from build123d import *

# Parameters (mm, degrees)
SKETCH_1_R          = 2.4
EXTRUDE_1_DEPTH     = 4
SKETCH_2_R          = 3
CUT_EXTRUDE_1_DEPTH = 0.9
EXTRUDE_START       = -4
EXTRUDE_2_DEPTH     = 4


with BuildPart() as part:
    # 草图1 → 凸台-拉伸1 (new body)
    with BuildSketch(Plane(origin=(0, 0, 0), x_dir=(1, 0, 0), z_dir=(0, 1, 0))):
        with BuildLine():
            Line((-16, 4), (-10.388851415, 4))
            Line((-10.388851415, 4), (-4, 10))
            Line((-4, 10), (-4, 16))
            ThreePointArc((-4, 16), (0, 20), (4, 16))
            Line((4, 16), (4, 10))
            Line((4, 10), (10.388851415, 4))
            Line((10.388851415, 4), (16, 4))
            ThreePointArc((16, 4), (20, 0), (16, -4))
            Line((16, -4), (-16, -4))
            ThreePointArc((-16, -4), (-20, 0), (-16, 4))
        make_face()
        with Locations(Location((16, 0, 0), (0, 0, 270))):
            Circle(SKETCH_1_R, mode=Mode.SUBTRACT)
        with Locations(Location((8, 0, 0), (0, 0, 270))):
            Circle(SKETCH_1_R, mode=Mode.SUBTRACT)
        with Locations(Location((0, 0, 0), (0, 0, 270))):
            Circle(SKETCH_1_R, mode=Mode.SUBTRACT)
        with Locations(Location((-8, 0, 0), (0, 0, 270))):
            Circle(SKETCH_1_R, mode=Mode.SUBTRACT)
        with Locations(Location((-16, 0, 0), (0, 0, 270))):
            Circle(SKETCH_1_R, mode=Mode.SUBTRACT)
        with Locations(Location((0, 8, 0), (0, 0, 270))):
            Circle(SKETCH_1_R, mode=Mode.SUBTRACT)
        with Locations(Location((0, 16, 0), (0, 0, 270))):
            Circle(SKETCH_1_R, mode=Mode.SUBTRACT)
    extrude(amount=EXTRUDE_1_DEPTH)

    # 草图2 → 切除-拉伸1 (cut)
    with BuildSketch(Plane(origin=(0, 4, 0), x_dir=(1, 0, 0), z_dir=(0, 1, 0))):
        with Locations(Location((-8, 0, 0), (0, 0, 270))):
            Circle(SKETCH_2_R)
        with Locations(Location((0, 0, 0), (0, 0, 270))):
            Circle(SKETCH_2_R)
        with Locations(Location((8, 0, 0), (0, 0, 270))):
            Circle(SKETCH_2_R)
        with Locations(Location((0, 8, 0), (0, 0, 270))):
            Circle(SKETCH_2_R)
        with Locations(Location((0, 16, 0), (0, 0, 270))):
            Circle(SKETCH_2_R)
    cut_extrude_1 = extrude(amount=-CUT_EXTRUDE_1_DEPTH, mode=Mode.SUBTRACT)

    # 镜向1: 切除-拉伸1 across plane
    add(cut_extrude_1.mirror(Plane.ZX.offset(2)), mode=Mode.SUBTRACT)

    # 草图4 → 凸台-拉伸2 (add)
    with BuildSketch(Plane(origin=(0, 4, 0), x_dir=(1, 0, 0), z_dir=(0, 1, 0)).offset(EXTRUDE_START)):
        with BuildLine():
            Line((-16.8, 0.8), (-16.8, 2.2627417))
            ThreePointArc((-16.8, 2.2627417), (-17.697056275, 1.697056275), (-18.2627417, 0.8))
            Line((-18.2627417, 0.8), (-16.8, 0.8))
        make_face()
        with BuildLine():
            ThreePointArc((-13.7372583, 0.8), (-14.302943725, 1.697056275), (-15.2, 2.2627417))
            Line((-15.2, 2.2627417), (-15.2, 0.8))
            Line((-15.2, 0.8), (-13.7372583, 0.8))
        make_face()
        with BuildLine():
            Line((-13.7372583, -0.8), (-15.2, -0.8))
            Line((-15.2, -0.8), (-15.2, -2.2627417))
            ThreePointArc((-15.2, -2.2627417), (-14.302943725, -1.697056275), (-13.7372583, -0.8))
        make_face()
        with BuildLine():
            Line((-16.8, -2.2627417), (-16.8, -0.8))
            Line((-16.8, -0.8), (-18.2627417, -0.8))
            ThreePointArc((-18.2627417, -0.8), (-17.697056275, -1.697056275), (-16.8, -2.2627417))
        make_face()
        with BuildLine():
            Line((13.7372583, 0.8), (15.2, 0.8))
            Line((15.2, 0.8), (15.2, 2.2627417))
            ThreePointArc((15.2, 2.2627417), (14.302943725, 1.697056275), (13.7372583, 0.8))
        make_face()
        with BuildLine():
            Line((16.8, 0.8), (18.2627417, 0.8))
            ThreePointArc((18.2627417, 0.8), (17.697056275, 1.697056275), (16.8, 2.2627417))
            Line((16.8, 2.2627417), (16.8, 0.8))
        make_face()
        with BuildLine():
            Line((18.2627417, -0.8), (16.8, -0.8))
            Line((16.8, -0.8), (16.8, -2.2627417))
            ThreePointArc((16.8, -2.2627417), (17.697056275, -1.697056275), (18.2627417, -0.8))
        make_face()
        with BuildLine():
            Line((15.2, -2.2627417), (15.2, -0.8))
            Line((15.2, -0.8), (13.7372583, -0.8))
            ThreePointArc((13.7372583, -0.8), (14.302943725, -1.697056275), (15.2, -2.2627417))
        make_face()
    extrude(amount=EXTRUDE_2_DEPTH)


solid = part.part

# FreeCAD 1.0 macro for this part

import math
import FreeCAD as App
import Part
import Sketcher
Q = App.Units.Quantity

doc = App.newDocument("Part")
body = doc.addObject("PartDesign::Body", "Body")

# Sketch on XZ plane
sketch1 = doc.addObject("Sketcher::SketchObject", "Sketch")
body.addObject(sketch1)
sketch1.AttachmentSupport = (doc.XZ_Plane, [""])
sketch1.MapMode = "FlatFace"
sketch1.addGeometry(Part.LineSegment(App.Vector(-10.4, -4, 0), App.Vector(-16, -4, 0)), False)
sketch1.addGeometry(Part.ArcOfCircle(Part.Circle(App.Vector(-16, 0, 0), App.Vector(0, 0, 1), 4), math.radians(90), math.radians(270)), False)
sketch1.addGeometry(Part.LineSegment(App.Vector(-16, 4, 0), App.Vector(16, 4, 0)), False)
sketch1.addGeometry(Part.ArcOfCircle(Part.Circle(App.Vector(16, 0, 0), App.Vector(0, 0, 1), 4), math.radians(-90), math.radians(90)), False)
sketch1.addGeometry(Part.LineSegment(App.Vector(16, -4, 0), App.Vector(10.4, -4, 0)), False)
sketch1.addGeometry(Part.LineSegment(App.Vector(10.4, -4, 0), App.Vector(4, -10, 0)), False)
sketch1.addGeometry(Part.LineSegment(App.Vector(4, -10, 0), App.Vector(4, -16, 0)), False)
sketch1.addGeometry(Part.ArcOfCircle(Part.Circle(App.Vector(0, -16, 0), App.Vector(0, 0, 1), 4), math.radians(180), math.radians(360)), False)
sketch1.addGeometry(Part.LineSegment(App.Vector(-4, -16, 0), App.Vector(-4, -10, 0)), False)
sketch1.addGeometry(Part.LineSegment(App.Vector(-4, -10, 0), App.Vector(-10.4, -4, 0)), False)
sketch1.addGeometry(Part.Circle(App.Vector(16, 0, 0), App.Vector(0, 0, 1), 2.4), False)
sketch1.addGeometry(Part.Circle(App.Vector(8, 0, 0), App.Vector(0, 0, 1), 2.4), False)
sketch1.addGeometry(Part.Circle(App.Vector(0, 0, 0), App.Vector(0, 0, 1), 2.4), False)
sketch1.addGeometry(Part.Circle(App.Vector(-8, 0, 0), App.Vector(0, 0, 1), 2.4), False)
sketch1.addGeometry(Part.Circle(App.Vector(-16, 0, 0), App.Vector(0, 0, 1), 2.4), False)
sketch1.addGeometry(Part.Circle(App.Vector(0, -8, 0), App.Vector(0, 0, 1), 2.4), False)
sketch1.addGeometry(Part.Circle(App.Vector(0, -16, 0), App.Vector(0, 0, 1), 2.4), False)
sketch1.addConstraint(Sketcher.Constraint("Tangent", 0, 2, 1, 2))
sketch1.addConstraint(Sketcher.Constraint("Tangent", 1, 1, 2, 1))
sketch1.addConstraint(Sketcher.Constraint("Tangent", 2, 2, 3, 2))
sketch1.addConstraint(Sketcher.Constraint("Tangent", 3, 1, 4, 1))
sketch1.addConstraint(Sketcher.Constraint("Coincident", 4, 2, 5, 1))
sketch1.addConstraint(Sketcher.Constraint("Coincident", 5, 2, 6, 1))
sketch1.addConstraint(Sketcher.Constraint("Tangent", 6, 2, 7, 2))
sketch1.addConstraint(Sketcher.Constraint("Tangent", 7, 1, 8, 1))
sketch1.addConstraint(Sketcher.Constraint("Coincident", 8, 2, 9, 1))
sketch1.addConstraint(Sketcher.Constraint("Coincident", 9, 2, 0, 1))
sketch1.addConstraint(Sketcher.Constraint("Horizontal", 0))
sketch1.addConstraint(Sketcher.Constraint("Horizontal", 2))
sketch1.addConstraint(Sketcher.Constraint("Horizontal", 4))
sketch1.addConstraint(Sketcher.Constraint("Vertical", 6))
sketch1.addConstraint(Sketcher.Constraint("Vertical", 8))
sketch1.addConstraint(Sketcher.Constraint("Coincident", 12, 3, -1, 1))
sketch1.addConstraint(Sketcher.Constraint("Coincident", 10, 3, 3, 3))
sketch1.addConstraint(Sketcher.Constraint("Coincident", 14, 3, 1, 3))
sketch1.addConstraint(Sketcher.Constraint("Coincident", 16, 3, 7, 3))
sketch1.addConstraint(Sketcher.Constraint("Equal", 1, 3))
sketch1.addConstraint(Sketcher.Constraint("Equal", 3, 7))
sketch1.addConstraint(Sketcher.Constraint("Equal", 10, 11))
sketch1.addConstraint(Sketcher.Constraint("Equal", 11, 12))
sketch1.addConstraint(Sketcher.Constraint("Equal", 12, 13))
sketch1.addConstraint(Sketcher.Constraint("Equal", 13, 14))
sketch1.addConstraint(Sketcher.Constraint("Equal", 14, 15))
sketch1.addConstraint(Sketcher.Constraint("Equal", 15, 16))
sketch1.addConstraint(Sketcher.Constraint("Symmetric", 1, 3, 3, 3, -1, 1))
sketch1.addConstraint(Sketcher.Constraint("Symmetric", 11, 3, 13, 3, -1, 1))
sketch1.addConstraint(Sketcher.Constraint("Symmetric", 5, 2, 8, 2, -2))
sketch1.addConstraint(Sketcher.Constraint("PointOnObject", 11, 3, -1))
sketch1.addConstraint(Sketcher.Constraint("PointOnObject", 15, 3, -2))
sketch1.addConstraint(Sketcher.Constraint("Equal", 0, 4))
sketch1.addConstraint(Sketcher.Constraint("Radius", 1, Q("4 mm")))
sketch1.addConstraint(Sketcher.Constraint("Diameter", 10, Q("4.8 mm")))
sketch1.addConstraint(Sketcher.Constraint("DistanceX", 2, 1, 2, 2, Q("32 mm")))
sketch1.addConstraint(Sketcher.Constraint("DistanceY", 6, 2, 6, 1, Q("6 mm")))
sketch1.addConstraint(Sketcher.Constraint("DistanceY", 7, 3, -1, 1, Q("16 mm")))
sketch1.addConstraint(Sketcher.Constraint("DistanceX", -1, 1, 11, 3, Q("8 mm")))
sketch1.addConstraint(Sketcher.Constraint("DistanceY", 15, 3, -1, 1, Q("8 mm")))
sketch1.addConstraint(Sketcher.Constraint("DistanceX", 0, 2, 0, 1, Q("5.611149 mm")))
pad1 = doc.addObject("PartDesign::Pad", "Pad")
body.addObject(pad1)
pad1.Profile = sketch1
pad1.Length = 4
pad1.Reversed = True

# Sketch on XZ plane
sketch2 = doc.addObject("Sketcher::SketchObject", "Sketch001")
body.addObject(sketch2)
sketch2.AttachmentSupport = (doc.XZ_Plane, [""])
sketch2.MapMode = "FlatFace"
sketch2.AttachmentOffset = App.Placement(App.Vector(0, 0, -4), App.Rotation())
sketch2.addGeometry(Part.Circle(App.Vector(-8, 0, 0), App.Vector(0, 0, 1), 3), False)
sketch2.addGeometry(Part.Circle(App.Vector(0, 0, 0), App.Vector(0, 0, 1), 3), False)
sketch2.addGeometry(Part.Circle(App.Vector(8, 0, 0), App.Vector(0, 0, 1), 3), False)
sketch2.addGeometry(Part.Circle(App.Vector(0, -8, 0), App.Vector(0, 0, 1), 3), False)
sketch2.addGeometry(Part.Circle(App.Vector(0, -16, 0), App.Vector(0, 0, 1), 3), False)
sketch2.addConstraint(Sketcher.Constraint("Coincident", 1, 3, -1, 1))
sketch2.addConstraint(Sketcher.Constraint("Equal", 0, 1))
sketch2.addConstraint(Sketcher.Constraint("Equal", 1, 2))
sketch2.addConstraint(Sketcher.Constraint("Equal", 2, 3))
sketch2.addConstraint(Sketcher.Constraint("Equal", 3, 4))
sketch2.addConstraint(Sketcher.Constraint("Symmetric", 0, 3, 2, 3, -1, 1))
sketch2.addConstraint(Sketcher.Constraint("PointOnObject", 0, 3, -1))
sketch2.addConstraint(Sketcher.Constraint("PointOnObject", 3, 3, -2))
sketch2.addConstraint(Sketcher.Constraint("PointOnObject", 4, 3, -2))
sketch2.addConstraint(Sketcher.Constraint("Diameter", 0, Q("6 mm")))
sketch2.addConstraint(Sketcher.Constraint("DistanceX", 0, 3, -1, 1, Q("8 mm")))
sketch2.addConstraint(Sketcher.Constraint("DistanceY", 3, 3, -1, 1, Q("8 mm")))
sketch2.addConstraint(Sketcher.Constraint("DistanceY", 4, 3, -1, 1, Q("16 mm")))
pocket1 = doc.addObject("PartDesign::Pocket", "Pocket")
body.addObject(pocket1)
pocket1.Profile = sketch2
pocket1.Length = 0.9
pocket1.Reversed = True
doc.recompute()

datumplane = doc.addObject("PartDesign::Plane", "DatumPlane")
body.addObject(datumplane)
datumplane.AttachmentSupport = (doc.XZ_Plane, [""])
datumplane.MapMode = "FlatFace"
datumplane.AttachmentOffset = App.Placement(App.Vector(0, 0, -2), App.Rotation())
mirrored = doc.addObject("PartDesign::Mirrored", "Mirrored")
body.addObject(mirrored)
mirrored.Originals = [pocket1]
mirrored.MirrorPlane = (datumplane, [""])
body.Tip = mirrored

# Sketch on XZ plane
sketch3 = doc.addObject("Sketcher::SketchObject", "Sketch002")
body.addObject(sketch3)
sketch3.AttachmentSupport = (doc.XZ_Plane, [""])
sketch3.MapMode = "FlatFace"
sketch3.addGeometry(Part.LineSegment(App.Vector(-16.8, -0.8, 0), App.Vector(-16.8, -2.3, 0)), False)
sketch3.addGeometry(Part.ArcOfCircle(Part.Circle(App.Vector(-16, 0, 0), App.Vector(0, 0, 1), 2.4), math.radians(-161), math.radians(-109)), False)
sketch3.addGeometry(Part.LineSegment(App.Vector(-18.3, -0.8, 0), App.Vector(-16.8, -0.8, 0)), False)
sketch3.addGeometry(Part.ArcOfCircle(Part.Circle(App.Vector(-16, 0, 0), App.Vector(0, 0, 1), 2.4), math.radians(-71), math.radians(-19)), False)
sketch3.addGeometry(Part.LineSegment(App.Vector(-15.2, -2.3, 0), App.Vector(-15.2, -0.8, 0)), False)
sketch3.addGeometry(Part.LineSegment(App.Vector(-15.2, -0.8, 0), App.Vector(-13.7, -0.8, 0)), False)
sketch3.addGeometry(Part.LineSegment(App.Vector(-13.7, 0.8, 0), App.Vector(-15.2, 0.8, 0)), False)
sketch3.addGeometry(Part.LineSegment(App.Vector(-15.2, 0.8, 0), App.Vector(-15.2, 2.3, 0)), False)
sketch3.addGeometry(Part.ArcOfCircle(Part.Circle(App.Vector(-16, 0, 0), App.Vector(0, 0, 1), 2.4), math.radians(19), math.radians(71)), False)
sketch3.addGeometry(Part.LineSegment(App.Vector(-16.8, 2.3, 0), App.Vector(-16.8, 0.8, 0)), False)
sketch3.addGeometry(Part.LineSegment(App.Vector(-16.8, 0.8, 0), App.Vector(-18.3, 0.8, 0)), False)
sketch3.addGeometry(Part.ArcOfCircle(Part.Circle(App.Vector(-16, 0, 0), App.Vector(0, 0, 1), 2.4), math.radians(109), math.radians(161)), False)
sketch3.addGeometry(Part.LineSegment(App.Vector(13.7, -0.8, 0), App.Vector(15.2, -0.8, 0)), False)
sketch3.addGeometry(Part.LineSegment(App.Vector(15.2, -0.8, 0), App.Vector(15.2, -2.3, 0)), False)
sketch3.addGeometry(Part.ArcOfCircle(Part.Circle(App.Vector(16, 0, 0), App.Vector(0, 0, 1), 2.4), math.radians(-161), math.radians(-109)), False)
sketch3.addGeometry(Part.LineSegment(App.Vector(16.8, -0.8, 0), App.Vector(18.3, -0.8, 0)), False)
sketch3.addGeometry(Part.ArcOfCircle(Part.Circle(App.Vector(16, 0, 0), App.Vector(0, 0, 1), 2.4), math.radians(-71), math.radians(-19)), False)
sketch3.addGeometry(Part.LineSegment(App.Vector(16.8, -2.3, 0), App.Vector(16.8, -0.8, 0)), False)
sketch3.addGeometry(Part.LineSegment(App.Vector(18.3, 0.8, 0), App.Vector(16.8, 0.8, 0)), False)
sketch3.addGeometry(Part.LineSegment(App.Vector(16.8, 0.8, 0), App.Vector(16.8, 2.3, 0)), False)
sketch3.addGeometry(Part.ArcOfCircle(Part.Circle(App.Vector(16, 0, 0), App.Vector(0, 0, 1), 2.4), math.radians(19), math.radians(71)), False)
sketch3.addGeometry(Part.LineSegment(App.Vector(15.2, 2.3, 0), App.Vector(15.2, 0.8, 0)), False)
sketch3.addGeometry(Part.LineSegment(App.Vector(15.2, 0.8, 0), App.Vector(13.7, 0.8, 0)), False)
sketch3.addGeometry(Part.ArcOfCircle(Part.Circle(App.Vector(16, 0, 0), App.Vector(0, 0, 1), 2.4), math.radians(109), math.radians(161)), False)
sketch3.addConstraint(Sketcher.Constraint("Coincident", 0, 2, 1, 2))
sketch3.addConstraint(Sketcher.Constraint("Coincident", 1, 1, 2, 1))
sketch3.addConstraint(Sketcher.Constraint("Coincident", 2, 2, 0, 1))
sketch3.addConstraint(Sketcher.Constraint("Coincident", 3, 1, 4, 1))
sketch3.addConstraint(Sketcher.Constraint("Coincident", 4, 2, 5, 1))
sketch3.addConstraint(Sketcher.Constraint("Coincident", 5, 2, 3, 2))
sketch3.addConstraint(Sketcher.Constraint("Coincident", 6, 2, 7, 1))
sketch3.addConstraint(Sketcher.Constraint("Coincident", 7, 2, 8, 2))
sketch3.addConstraint(Sketcher.Constraint("Coincident", 8, 1, 6, 1))
sketch3.addConstraint(Sketcher.Constraint("Coincident", 9, 2, 10, 1))
sketch3.addConstraint(Sketcher.Constraint("Coincident", 10, 2, 11, 2))
sketch3.addConstraint(Sketcher.Constraint("Coincident", 11, 1, 9, 1))
sketch3.addConstraint(Sketcher.Constraint("Coincident", 12, 2, 13, 1))
sketch3.addConstraint(Sketcher.Constraint("Coincident", 13, 2, 14, 2))
sketch3.addConstraint(Sketcher.Constraint("Coincident", 14, 1, 12, 1))
sketch3.addConstraint(Sketcher.Constraint("Coincident", 15, 2, 16, 2))
sketch3.addConstraint(Sketcher.Constraint("Coincident", 16, 1, 17, 1))
sketch3.addConstraint(Sketcher.Constraint("Coincident", 17, 2, 15, 1))
sketch3.addConstraint(Sketcher.Constraint("Coincident", 18, 2, 19, 1))
sketch3.addConstraint(Sketcher.Constraint("Coincident", 19, 2, 20, 2))
sketch3.addConstraint(Sketcher.Constraint("Coincident", 20, 1, 18, 1))
sketch3.addConstraint(Sketcher.Constraint("Coincident", 21, 2, 22, 1))
sketch3.addConstraint(Sketcher.Constraint("Coincident", 22, 2, 23, 2))
sketch3.addConstraint(Sketcher.Constraint("Coincident", 23, 1, 21, 1))
sketch3.addConstraint(Sketcher.Constraint("Vertical", 0))
sketch3.addConstraint(Sketcher.Constraint("Horizontal", 2))
sketch3.addConstraint(Sketcher.Constraint("Vertical", 4))
sketch3.addConstraint(Sketcher.Constraint("Horizontal", 5))
sketch3.addConstraint(Sketcher.Constraint("Horizontal", 6))
sketch3.addConstraint(Sketcher.Constraint("Vertical", 7))
sketch3.addConstraint(Sketcher.Constraint("Vertical", 9))
sketch3.addConstraint(Sketcher.Constraint("Horizontal", 10))
sketch3.addConstraint(Sketcher.Constraint("Horizontal", 12))
sketch3.addConstraint(Sketcher.Constraint("Vertical", 13))
sketch3.addConstraint(Sketcher.Constraint("Horizontal", 15))
sketch3.addConstraint(Sketcher.Constraint("Vertical", 17))
sketch3.addConstraint(Sketcher.Constraint("Horizontal", 18))
sketch3.addConstraint(Sketcher.Constraint("Vertical", 19))
sketch3.addConstraint(Sketcher.Constraint("Vertical", 21))
sketch3.addConstraint(Sketcher.Constraint("Horizontal", 22))
sketch3.addConstraint(Sketcher.Constraint("Coincident", 3, 3, 1, 3))
sketch3.addConstraint(Sketcher.Constraint("Coincident", 8, 3, 1, 3))
sketch3.addConstraint(Sketcher.Constraint("Coincident", 11, 3, 1, 3))
sketch3.addConstraint(Sketcher.Constraint("Coincident", 16, 3, 14, 3))
sketch3.addConstraint(Sketcher.Constraint("Coincident", 20, 3, 14, 3))
sketch3.addConstraint(Sketcher.Constraint("Coincident", 23, 3, 14, 3))
sketch3.addConstraint(Sketcher.Constraint("Equal", 1, 3))
sketch3.addConstraint(Sketcher.Constraint("Equal", 3, 8))
sketch3.addConstraint(Sketcher.Constraint("Equal", 8, 11))
sketch3.addConstraint(Sketcher.Constraint("Equal", 11, 14))
sketch3.addConstraint(Sketcher.Constraint("Equal", 14, 16))
sketch3.addConstraint(Sketcher.Constraint("Equal", 16, 20))
sketch3.addConstraint(Sketcher.Constraint("Equal", 20, 23))
sketch3.addConstraint(Sketcher.Constraint("Symmetric", 1, 3, 14, 3, -1, 1))
sketch3.addConstraint(Sketcher.Constraint("Symmetric", 6, 2, 12, 2, -1, 1))
sketch3.addConstraint(Sketcher.Constraint("Symmetric", 9, 2, 17, 2, -1, 1))
sketch3.addConstraint(Sketcher.Constraint("Symmetric", 2, 2, 18, 2, -1, 1))
sketch3.addConstraint(Sketcher.Constraint("Symmetric", 4, 2, 21, 2, -1, 1))
sketch3.addConstraint(Sketcher.Constraint("Symmetric", 4, 2, 12, 2, -2))
sketch3.addConstraint(Sketcher.Constraint("Symmetric", 1, 1, 15, 2, -2))
sketch3.addConstraint(Sketcher.Constraint("Horizontal", 0, 2, 3, 1))
sketch3.addConstraint(Sketcher.Constraint("Horizontal", 2, 2, 4, 2))
sketch3.addConstraint(Sketcher.Constraint("Horizontal", 7, 2, 11, 1))
sketch3.addConstraint(Sketcher.Constraint("Equal", 22, 0))
sketch3.addConstraint(Sketcher.Constraint("Radius", 1, Q("2.4 mm")))
sketch3.addConstraint(Sketcher.Constraint("DistanceX", 1, 3, -1, 1, Q("16 mm")))
sketch3.addConstraint(Sketcher.Constraint("DistanceX", 0, 2, -1, 1, Q("16.8 mm")))
pad2 = doc.addObject("PartDesign::Pad", "Pad001")
body.addObject(pad2)
pad2.Profile = sketch3
pad2.Length = 4
pad2.Reversed = True

doc.recompute()
